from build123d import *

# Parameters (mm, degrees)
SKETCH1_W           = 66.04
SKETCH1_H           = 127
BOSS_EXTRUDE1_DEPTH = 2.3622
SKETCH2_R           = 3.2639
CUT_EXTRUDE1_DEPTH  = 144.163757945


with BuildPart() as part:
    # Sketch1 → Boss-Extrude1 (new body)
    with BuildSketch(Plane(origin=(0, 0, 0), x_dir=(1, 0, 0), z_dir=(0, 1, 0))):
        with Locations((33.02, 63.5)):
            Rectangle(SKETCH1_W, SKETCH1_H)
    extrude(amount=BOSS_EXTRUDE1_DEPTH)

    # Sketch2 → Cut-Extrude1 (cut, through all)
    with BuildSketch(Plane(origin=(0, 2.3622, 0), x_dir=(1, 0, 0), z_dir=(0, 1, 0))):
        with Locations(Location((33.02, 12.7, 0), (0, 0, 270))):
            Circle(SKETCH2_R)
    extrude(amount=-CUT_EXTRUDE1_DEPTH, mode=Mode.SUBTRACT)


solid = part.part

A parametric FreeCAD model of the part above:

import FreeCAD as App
import Part
import Sketcher

V = App.Vector
Q = App.Units.Quantity

doc = App.newDocument("Part")
body = doc.addObject("PartDesign::Body", "Body")

# Sketch on XZ plane
sketch1 = body.newObject("Sketcher::SketchObject", "Sketch")
sketch1.AttachmentSupport = (doc.getObject("XZ_Plane"), [""])
sketch1.MapMode = "FlatFace"
sketch1.addGeometry([
    Part.LineSegment(V(0, -127, 0), V(0, 0, 0)),
    Part.LineSegment(V(0, 0, 0), V(66, 0, 0)),
    Part.LineSegment(V(66, 0, 0), V(66, -127, 0)),
    Part.LineSegment(V(66, -127, 0), V(0, -127, 0)),
], False)
sketch1.addConstraint([
    Sketcher.Constraint("Coincident", 0, 2, 1, 1),
    Sketcher.Constraint("Coincident", 1, 2, 2, 1),
    Sketcher.Constraint("Coincident", 2, 2, 3, 1),
    Sketcher.Constraint("Coincident", 3, 2, 0, 1),
    Sketcher.Constraint("Vertical", 0),
    Sketcher.Constraint("Horizontal", 1),
    Sketcher.Constraint("Vertical", 2),
    Sketcher.Constraint("Horizontal", 3),
    Sketcher.Constraint("Coincident", 0, 2, -1, 1),
    Sketcher.Constraint("DistanceY", 0, 1, 0, 2, Q("5 in")),
    Sketcher.Constraint("DistanceX", 1, 1, 1, 2, Q("2.6 in")),
])
pad1 = body.newObject("PartDesign::Pad", "Pad")
pad1.Profile = sketch1
pad1.Length = Q("0.093 in")
pad1.Reversed = True

# Sketch on XZ plane
sketch2 = body.newObject("Sketcher::SketchObject", "Sketch001")
sketch2.AttachmentSupport = (doc.getObject("XZ_Plane"), [""])
sketch2.MapMode = "FlatFace"
sketch2.AttachmentOffset = App.Placement(V(0, 0, -0.093 * 25.4), App.Rotation())
sketch2.addGeometry(Part.Circle(V(33, -12.7, 0), V(0, 0, 1), 3.3), False)
sketch2.addConstraint([
    Sketcher.Constraint("Diameter", 0, Q("0.257 in")),
    Sketcher.Constraint("DistanceX", -1, 1, 0, 3, Q("1.3 in")),
    Sketcher.Constraint("DistanceY", 0, 3, -1, 1, Q("0.5 in")),
])
pocket1 = body.newObject("PartDesign::Pocket", "Pocket")
pocket1.Profile = sketch2
pocket1.Type = "ThroughAll"
pocket1.Reversed = True

doc.recompute()
